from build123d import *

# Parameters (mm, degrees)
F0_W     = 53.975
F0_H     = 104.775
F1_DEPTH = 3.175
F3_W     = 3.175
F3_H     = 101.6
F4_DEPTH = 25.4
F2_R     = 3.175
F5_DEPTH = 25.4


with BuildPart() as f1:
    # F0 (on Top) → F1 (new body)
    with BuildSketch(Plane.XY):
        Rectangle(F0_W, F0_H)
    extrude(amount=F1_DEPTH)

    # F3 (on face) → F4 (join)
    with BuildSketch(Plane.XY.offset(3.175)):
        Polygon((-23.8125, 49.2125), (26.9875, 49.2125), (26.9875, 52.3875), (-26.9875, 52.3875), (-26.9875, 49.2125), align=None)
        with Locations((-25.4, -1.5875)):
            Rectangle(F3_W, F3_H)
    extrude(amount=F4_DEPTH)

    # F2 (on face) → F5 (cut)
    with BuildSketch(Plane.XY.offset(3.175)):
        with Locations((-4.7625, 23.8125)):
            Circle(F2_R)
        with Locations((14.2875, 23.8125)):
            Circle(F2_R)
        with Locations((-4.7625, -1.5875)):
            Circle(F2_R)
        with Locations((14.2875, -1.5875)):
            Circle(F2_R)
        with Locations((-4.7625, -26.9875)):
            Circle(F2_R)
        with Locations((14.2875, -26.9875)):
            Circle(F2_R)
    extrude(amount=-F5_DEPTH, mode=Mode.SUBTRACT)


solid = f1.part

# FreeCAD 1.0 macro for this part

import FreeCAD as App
import Part
import Sketcher

V = App.Vector
Q = App.Units.Quantity

doc = App.newDocument("Part")
body = doc.addObject("PartDesign::Body", "Body")

# Sketch on XY plane
sketch1 = body.newObject("Sketcher::SketchObject", "Sketch")
sketch1.AttachmentSupport = (doc.getObject("XY_Plane"), [""])
sketch1.MapMode = "FlatFace"
sketch1.addGeometry(Part.LineSegment(V(-27, 52, 0), V(-27, -52, 0)), False)
sketch1.addGeometry(Part.LineSegment(V(-27, -52, 0), V(27, -52, 0)), False)
sketch1.addGeometry(Part.LineSegment(V(27, -52, 0), V(27, 52, 0)), False)
sketch1.addGeometry(Part.LineSegment(V(27, 52, 0), V(-27, 52, 0)), False)
sketch1.addConstraint(Sketcher.Constraint("Coincident", 0, 2, 1, 1))
sketch1.addConstraint(Sketcher.Constraint("Coincident", 1, 2, 2, 1))
sketch1.addConstraint(Sketcher.Constraint("Coincident", 2, 2, 3, 1))
sketch1.addConstraint(Sketcher.Constraint("Coincident", 3, 2, 0, 1))
sketch1.addConstraint(Sketcher.Constraint("Vertical", 0))
sketch1.addConstraint(Sketcher.Constraint("Horizontal", 1))
sketch1.addConstraint(Sketcher.Constraint("Vertical", 2))
sketch1.addConstraint(Sketcher.Constraint("Horizontal", 3))
sketch1.addConstraint(Sketcher.Constraint("Symmetric", 0, 2, 2, 2, -1, 1))
sketch1.addConstraint(Sketcher.Constraint("DistanceX", 1, 1, 1, 2, Q("2.125 in")))
sketch1.addConstraint(Sketcher.Constraint("DistanceY", 0, 2, 0, 1, Q("4.125 in")))
pad1 = body.newObject("PartDesign::Pad", "Pad")
pad1.Profile = sketch1
pad1.Length = Q("0.125 in")

# Sketch on XY plane
sketch2 = body.newObject("Sketcher::SketchObject", "Sketch001")
sketch2.AttachmentSupport = (doc.getObject("XY_Plane"), [""])
sketch2.MapMode = "FlatFace"
sketch2.AttachmentOffset = App.Placement(V(0, 0, 0.125 * 25.4), App.Rotation())
sketch2.addGeometry(Part.LineSegment(V(27, 49.2, 0), V(27, 52.4, 0)), False)
sketch2.addGeometry(Part.LineSegment(V(27, 52.4, 0), V(-27, 52.4, 0)), False)
sketch2.addGeometry(Part.LineSegment(V(-27, 52.4, 0), V(-27, -52.4, 0)), False)
sketch2.addGeometry(Part.LineSegment(V(-27, -52.4, 0), V(-23.8, -52.4, 0)), False)
sketch2.addGeometry(Part.LineSegment(V(-23.8, -52.4, 0), V(-23.8, 49.2, 0)), False)
sketch2.addGeometry(Part.LineSegment(V(-23.8, 49.2, 0), V(27, 49.2, 0)), False)
sketch2.addConstraint(Sketcher.Constraint("Coincident", 0, 2, 1, 1))
sketch2.addConstraint(Sketcher.Constraint("Coincident", 1, 2, 2, 1))
sketch2.addConstraint(Sketcher.Constraint("Coincident", 2, 2, 3, 1))
sketch2.addConstraint(Sketcher.Constraint("Coincident", 3, 2, 4, 1))
sketch2.addConstraint(Sketcher.Constraint("Coincident", 4, 2, 5, 1))
sketch2.addConstraint(Sketcher.Constraint("Coincident", 5, 2, 0, 1))
sketch2.addConstraint(Sketcher.Constraint("Vertical", 0))
sketch2.addConstraint(Sketcher.Constraint("Horizontal", 1))
sketch2.addConstraint(Sketcher.Constraint("Vertical", 2))
sketch2.addConstraint(Sketcher.Constraint("Horizontal", 3))
sketch2.addConstraint(Sketcher.Constraint("Vertical", 4))
sketch2.addConstraint(Sketcher.Constraint("Horizontal", 5))
sketch2.addConstraint(Sketcher.Constraint("Symmetric", 0, 2, 2, 2, -1, 1))
sketch2.addConstraint(Sketcher.Constraint("Equal", 3, 0))
sketch2.addConstraint(Sketcher.Constraint("DistanceX", 5, 1, 5, 2, Q("2 in")))
sketch2.addConstraint(Sketcher.Constraint("DistanceY", 4, 1, 4, 2, Q("4 in")))
sketch2.addConstraint(Sketcher.Constraint("DistanceX", 1, 2, 1, 1, Q("2.125 in")))
pad2 = body.newObject("PartDesign::Pad", "Pad001")
pad2.Profile = sketch2
pad2.Length = Q("1 in")

# Sketch on XY plane
sketch3 = body.newObject("Sketcher::SketchObject", "Sketch002")
sketch3.AttachmentSupport = (doc.getObject("XY_Plane"), [""])
sketch3.MapMode = "FlatFace"
sketch3.AttachmentOffset = App.Placement(V(0, 0, 0.125 * 25.4), App.Rotation())
sketch3.addGeometry(Part.Circle(V(-4.8, 23.8, 0), V(0, 0, 1), 3.2), False)
sketch3.addGeometry(Part.Circle(V(14.3, 23.8, 0), V(0, 0, 1), 3.2), False)
sketch3.addGeometry(Part.Circle(V(-4.8, -1.6, 0), V(0, 0, 1), 3.2), False)
sketch3.addGeometry(Part.Circle(V(14.3, -1.6, 0), V(0, 0, 1), 3.2), False)
sketch3.addGeometry(Part.Circle(V(-4.8, -27, 0), V(0, 0, 1), 3.2), False)
sketch3.addGeometry(Part.Circle(V(14.3, -27, 0), V(0, 0, 1), 3.2), False)
sketch3.addConstraint(Sketcher.Constraint("Equal", 0, 1))
sketch3.addConstraint(Sketcher.Constraint("Equal", 1, 2))
sketch3.addConstraint(Sketcher.Constraint("Equal", 2, 3))
sketch3.addConstraint(Sketcher.Constraint("Equal", 3, 4))
sketch3.addConstraint(Sketcher.Constraint("Equal", 4, 5))
sketch3.addConstraint(Sketcher.Constraint("Horizontal", 0, 3, 1, 3))
sketch3.addConstraint(Sketcher.Constraint("Horizontal", 2, 3, 3, 3))
sketch3.addConstraint(Sketcher.Constraint("Horizontal", 4, 3, 5, 3))
sketch3.addConstraint(Sketcher.Constraint("Vertical", 0, 3, 2, 3))
sketch3.addConstraint(Sketcher.Constraint("Vertical", 1, 3, 3, 3))
sketch3.addConstraint(Sketcher.Constraint("Vertical", 2, 3, 4, 3))
sketch3.addConstraint(Sketcher.Constraint("Vertical", 3, 3, 5, 3))
sketch3.addConstraint(Sketcher.Constraint("Diameter", 0, Q("0.25 in")))
sketch3.addConstraint(Sketcher.Constraint("DistanceY", 2, 3, 0, 3, Q("1 in")))
sketch3.addConstraint(Sketcher.Constraint("DistanceY", 4, 3, 2, 3, Q("1 in")))
sketch3.addConstraint(Sketcher.Constraint("DistanceX", 0, 3, 1, 3, Q("0.75 in")))
sketch3.addConstraint(Sketcher.Constraint("DistanceX", 0, 3, -1, 1, Q("0.1875 in")))
sketch3.addConstraint(Sketcher.Constraint("DistanceY", -1, 1, 0, 3, Q("0.9375 in")))
pocket1 = body.newObject("PartDesign::Pocket", "Pocket")
pocket1.Profile = sketch3
pocket1.Length = Q("1 in")

doc.recompute()
